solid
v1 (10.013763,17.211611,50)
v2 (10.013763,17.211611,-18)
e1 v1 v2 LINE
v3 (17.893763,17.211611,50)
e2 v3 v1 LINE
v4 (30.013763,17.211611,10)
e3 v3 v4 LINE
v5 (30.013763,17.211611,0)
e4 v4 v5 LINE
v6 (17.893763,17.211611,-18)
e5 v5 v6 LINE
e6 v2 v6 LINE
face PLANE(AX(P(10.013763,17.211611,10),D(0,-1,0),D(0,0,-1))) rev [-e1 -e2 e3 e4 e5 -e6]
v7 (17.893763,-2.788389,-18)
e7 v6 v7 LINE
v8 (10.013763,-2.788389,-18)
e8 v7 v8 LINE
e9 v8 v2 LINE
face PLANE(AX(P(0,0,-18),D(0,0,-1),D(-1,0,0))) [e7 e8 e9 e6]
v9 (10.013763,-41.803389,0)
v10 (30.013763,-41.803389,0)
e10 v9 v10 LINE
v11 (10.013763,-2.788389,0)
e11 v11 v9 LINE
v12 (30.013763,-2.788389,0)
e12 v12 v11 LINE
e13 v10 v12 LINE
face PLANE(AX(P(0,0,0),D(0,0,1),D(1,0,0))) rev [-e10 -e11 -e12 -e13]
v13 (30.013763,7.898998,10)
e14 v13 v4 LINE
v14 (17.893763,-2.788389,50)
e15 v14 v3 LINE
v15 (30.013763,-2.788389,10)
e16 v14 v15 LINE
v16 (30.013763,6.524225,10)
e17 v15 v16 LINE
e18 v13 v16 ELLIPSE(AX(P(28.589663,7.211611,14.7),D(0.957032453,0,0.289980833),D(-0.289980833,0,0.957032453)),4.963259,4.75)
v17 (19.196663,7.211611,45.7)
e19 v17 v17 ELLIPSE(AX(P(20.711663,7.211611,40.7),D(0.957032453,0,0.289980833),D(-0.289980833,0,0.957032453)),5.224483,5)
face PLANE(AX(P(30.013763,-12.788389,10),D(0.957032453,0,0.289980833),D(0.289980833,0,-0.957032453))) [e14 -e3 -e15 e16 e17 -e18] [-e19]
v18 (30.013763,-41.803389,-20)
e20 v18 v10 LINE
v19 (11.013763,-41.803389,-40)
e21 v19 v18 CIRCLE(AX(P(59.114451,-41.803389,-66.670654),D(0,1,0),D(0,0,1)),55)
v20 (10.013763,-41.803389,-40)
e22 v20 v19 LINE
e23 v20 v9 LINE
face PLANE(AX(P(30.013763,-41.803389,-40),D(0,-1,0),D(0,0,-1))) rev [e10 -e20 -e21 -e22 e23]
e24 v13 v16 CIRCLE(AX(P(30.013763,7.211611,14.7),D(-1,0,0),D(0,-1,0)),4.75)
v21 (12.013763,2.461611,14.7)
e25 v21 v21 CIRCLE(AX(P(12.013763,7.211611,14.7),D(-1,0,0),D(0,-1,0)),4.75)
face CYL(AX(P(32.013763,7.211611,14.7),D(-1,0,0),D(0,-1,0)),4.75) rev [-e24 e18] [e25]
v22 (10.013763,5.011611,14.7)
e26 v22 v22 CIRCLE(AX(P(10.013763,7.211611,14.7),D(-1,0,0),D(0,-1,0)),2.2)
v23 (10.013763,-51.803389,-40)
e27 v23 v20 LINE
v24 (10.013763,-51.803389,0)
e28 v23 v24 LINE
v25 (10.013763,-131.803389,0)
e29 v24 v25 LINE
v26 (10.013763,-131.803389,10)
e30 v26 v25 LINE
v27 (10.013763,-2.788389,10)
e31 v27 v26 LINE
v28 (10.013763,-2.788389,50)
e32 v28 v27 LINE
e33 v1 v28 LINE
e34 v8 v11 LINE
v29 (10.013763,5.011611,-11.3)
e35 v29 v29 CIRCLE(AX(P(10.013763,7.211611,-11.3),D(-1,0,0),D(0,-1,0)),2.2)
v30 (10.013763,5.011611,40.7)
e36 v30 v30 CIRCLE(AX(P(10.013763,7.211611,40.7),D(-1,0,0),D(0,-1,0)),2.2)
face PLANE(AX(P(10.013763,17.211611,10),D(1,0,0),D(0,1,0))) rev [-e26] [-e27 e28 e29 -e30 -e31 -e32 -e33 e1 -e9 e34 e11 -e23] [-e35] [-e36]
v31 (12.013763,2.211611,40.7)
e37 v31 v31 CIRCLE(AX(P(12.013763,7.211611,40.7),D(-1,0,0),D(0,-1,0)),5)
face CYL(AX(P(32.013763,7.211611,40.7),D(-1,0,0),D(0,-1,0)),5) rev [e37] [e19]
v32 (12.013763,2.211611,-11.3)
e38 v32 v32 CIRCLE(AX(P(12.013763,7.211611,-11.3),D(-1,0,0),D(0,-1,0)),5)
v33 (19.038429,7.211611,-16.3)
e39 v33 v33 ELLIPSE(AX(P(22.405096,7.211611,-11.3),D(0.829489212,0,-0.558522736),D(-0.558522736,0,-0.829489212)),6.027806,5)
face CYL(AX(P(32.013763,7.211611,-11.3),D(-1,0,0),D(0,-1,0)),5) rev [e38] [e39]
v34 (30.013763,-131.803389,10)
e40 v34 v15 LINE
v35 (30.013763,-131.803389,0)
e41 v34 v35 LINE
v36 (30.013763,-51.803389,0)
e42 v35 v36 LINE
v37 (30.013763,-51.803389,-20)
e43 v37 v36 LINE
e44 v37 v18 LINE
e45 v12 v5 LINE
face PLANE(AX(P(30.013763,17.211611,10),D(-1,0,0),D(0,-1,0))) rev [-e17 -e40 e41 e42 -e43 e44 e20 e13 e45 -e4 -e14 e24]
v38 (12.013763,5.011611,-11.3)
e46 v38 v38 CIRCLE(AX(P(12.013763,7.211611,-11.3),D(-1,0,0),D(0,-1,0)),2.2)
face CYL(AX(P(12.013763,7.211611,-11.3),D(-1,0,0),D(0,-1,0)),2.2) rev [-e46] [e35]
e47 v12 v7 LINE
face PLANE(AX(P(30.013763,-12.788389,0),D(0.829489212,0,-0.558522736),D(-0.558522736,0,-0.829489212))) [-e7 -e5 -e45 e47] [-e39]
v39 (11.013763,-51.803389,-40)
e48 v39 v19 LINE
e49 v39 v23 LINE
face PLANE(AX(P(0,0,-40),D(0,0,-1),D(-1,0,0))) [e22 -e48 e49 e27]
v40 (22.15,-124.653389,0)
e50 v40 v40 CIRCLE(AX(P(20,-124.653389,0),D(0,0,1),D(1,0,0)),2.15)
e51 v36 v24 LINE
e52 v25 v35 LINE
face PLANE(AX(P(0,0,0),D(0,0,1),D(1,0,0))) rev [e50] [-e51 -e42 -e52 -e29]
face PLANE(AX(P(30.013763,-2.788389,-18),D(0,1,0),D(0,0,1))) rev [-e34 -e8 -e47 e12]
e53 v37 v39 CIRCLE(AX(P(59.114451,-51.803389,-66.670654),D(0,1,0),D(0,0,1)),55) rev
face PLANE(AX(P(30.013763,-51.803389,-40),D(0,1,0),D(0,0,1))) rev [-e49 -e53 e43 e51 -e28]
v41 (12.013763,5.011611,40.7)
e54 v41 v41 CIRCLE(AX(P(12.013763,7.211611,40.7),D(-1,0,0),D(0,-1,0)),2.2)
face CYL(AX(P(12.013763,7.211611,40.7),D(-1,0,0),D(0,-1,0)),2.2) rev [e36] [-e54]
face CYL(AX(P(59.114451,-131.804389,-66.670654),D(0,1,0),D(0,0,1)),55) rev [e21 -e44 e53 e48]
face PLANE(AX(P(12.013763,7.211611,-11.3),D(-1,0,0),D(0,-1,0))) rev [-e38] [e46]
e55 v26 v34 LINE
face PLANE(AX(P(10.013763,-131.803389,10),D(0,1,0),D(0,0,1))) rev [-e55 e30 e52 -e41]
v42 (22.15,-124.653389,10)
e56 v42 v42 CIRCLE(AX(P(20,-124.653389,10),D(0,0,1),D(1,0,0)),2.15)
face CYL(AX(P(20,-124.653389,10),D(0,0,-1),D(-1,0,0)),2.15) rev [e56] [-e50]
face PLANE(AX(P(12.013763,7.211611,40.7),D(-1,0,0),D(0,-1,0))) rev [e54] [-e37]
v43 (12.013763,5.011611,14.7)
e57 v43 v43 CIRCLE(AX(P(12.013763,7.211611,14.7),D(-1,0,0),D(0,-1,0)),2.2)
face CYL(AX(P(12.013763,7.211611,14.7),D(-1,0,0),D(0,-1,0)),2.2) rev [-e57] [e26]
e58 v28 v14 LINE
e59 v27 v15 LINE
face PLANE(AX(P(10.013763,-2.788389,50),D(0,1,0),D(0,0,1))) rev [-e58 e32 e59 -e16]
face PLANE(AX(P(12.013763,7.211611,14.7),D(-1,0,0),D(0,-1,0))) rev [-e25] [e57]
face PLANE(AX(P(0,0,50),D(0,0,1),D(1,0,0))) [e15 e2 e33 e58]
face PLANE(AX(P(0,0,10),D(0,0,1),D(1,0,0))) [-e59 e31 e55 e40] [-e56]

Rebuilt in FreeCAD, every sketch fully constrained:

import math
import FreeCAD as App
import Part
import Sketcher
from FreeCAD import Vector

doc = App.newDocument("Part")
body = doc.addObject("PartDesign::Body", "Body")

sketch1 = body.newObject("Sketcher::SketchObject", "Sketch")
sketch1.AttachmentSupport = (doc.getObject("XY_Plane"), [""])
sketch1.MapMode = "FlatFace"
sketch1.addGeometry(Part.LineSegment(Vector(10.013763, 17.211611, 0), Vector(10.013763, -131.803389, 0)), False)
sketch1.addGeometry(Part.LineSegment(Vector(10.013763, -131.803389, 0), Vector(30.013763, -131.803389, 0)), False)
sketch1.addGeometry(Part.LineSegment(Vector(30.013763, -131.803389, 0), Vector(30.013763, 17.211611, 0)), False)
sketch1.addGeometry(Part.LineSegment(Vector(30.013763, 17.211611, 0), Vector(10.013763, 17.211611, 0)), False)
sketch1.addGeometry(Part.Circle(Vector(20, -124.653389, 0), Vector(0, 0, 1), 2.15), False)
sketch1.addConstraint(Sketcher.Constraint("Coincident", 0, 2, 1, 1))
sketch1.addConstraint(Sketcher.Constraint("Coincident", 1, 2, 2, 1))
sketch1.addConstraint(Sketcher.Constraint("Coincident", 2, 2, 3, 1))
sketch1.addConstraint(Sketcher.Constraint("Coincident", 3, 2, 0, 1))
sketch1.addConstraint(Sketcher.Constraint("Vertical", 0))
sketch1.addConstraint(Sketcher.Constraint("Horizontal", 1))
sketch1.addConstraint(Sketcher.Constraint("Vertical", 2))
sketch1.addConstraint(Sketcher.Constraint("Horizontal", 3))
sketch1.addConstraint(Sketcher.Constraint("Diameter", 4, 4.3))
sketch1.addConstraint(Sketcher.Constraint("DistanceX", 1, 1, 1, 2, 20.0))
sketch1.addConstraint(Sketcher.Constraint("DistanceX", -1, 1, 4, 3, 20.0))
sketch1.addConstraint(Sketcher.Constraint("DistanceY", 0, 2, 0, 1, 149.015))
sketch1.addConstraint(Sketcher.Constraint("DistanceY", 0, 2, 4, 3, 7.15))
sketch1.addConstraint(Sketcher.Constraint("DistanceY", 4, 3, -1, 1, 124.653389))
sketch1.addConstraint(Sketcher.Constraint("DistanceX", -1, 1, 0, 2, 10.013763))
pad1 = body.newObject("PartDesign::Pad", "Pad")
pad1.Profile = sketch1
pad1.Length = 10

sketch2 = body.newObject("Sketcher::SketchObject", "Sketch001")
sketch2.AttachmentSupport = (doc.getObject("XY_Plane"), [""])
sketch2.MapMode = "FlatFace"
sketch2.AttachmentOffset = App.Placement(Vector(0, 0, 10), App.Rotation())
sketch2.addGeometry(Part.LineSegment(Vector(10.013763, 17.211611, 0), Vector(10.013763, -2.788389, 0)), False)
sketch2.addGeometry(Part.LineSegment(Vector(10.013763, -2.788389, 0), Vector(30.013763, -2.788389, 0)), False)
sketch2.addGeometry(Part.LineSegment(Vector(30.013763, -2.788389, 0), Vector(30.013763, 17.211611, 0)), False)
sketch2.addGeometry(Part.LineSegment(Vector(30.013763, 17.211611, 0), Vector(10.013763, 17.211611, 0)), False)
sketch2.addConstraint(Sketcher.Constraint("Coincident", 0, 2, 1, 1))
sketch2.addConstraint(Sketcher.Constraint("Coincident", 1, 2, 2, 1))
sketch2.addConstraint(Sketcher.Constraint("Coincident", 2, 2, 3, 1))
sketch2.addConstraint(Sketcher.Constraint("Coincident", 3, 2, 0, 1))
sketch2.addConstraint(Sketcher.Constraint("Vertical", 0))
sketch2.addConstraint(Sketcher.Constraint("Horizontal", 1))
sketch2.addConstraint(Sketcher.Constraint("Vertical", 2))
sketch2.addConstraint(Sketcher.Constraint("Horizontal", 3))
sketch2.addConstraint(Sketcher.Constraint("Equal", 3, 0))
sketch2.addConstraint(Sketcher.Constraint("DistanceX", 1, 1, 1, 2, 20.0))
sketch2.addConstraint(Sketcher.Constraint("DistanceY", 0, 2, -1, 1, 2.788389))
sketch2.addConstraint(Sketcher.Constraint("DistanceX", -1, 1, 0, 2, 10.013763))
pad2 = body.newObject("PartDesign::Pad", "Pad001")
pad2.Profile = sketch2
pad2.Length = 40

sketch3 = body.newObject("Sketcher::SketchObject", "Sketch002")
sketch3.AttachmentSupport = (doc.getObject("XY_Plane"), [""])
sketch3.MapMode = "FlatFace"
sketch3.addGeometry(Part.LineSegment(Vector(30.013763, 17.211611, 0), Vector(30.013763, -2.788389, 0)), False)
sketch3.addGeometry(Part.LineSegment(Vector(30.013763, -2.788389, 0), Vector(10.013763, -2.788389, 0)), False)
sketch3.addGeometry(Part.LineSegment(Vector(10.013763, -2.788389, 0), Vector(10.013763, 17.211611, 0)), False)
sketch3.addGeometry(Part.LineSegment(Vector(10.013763, 17.211611, 0), Vector(30.013763, 17.211611, 0)), False)
sketch3.addConstraint(Sketcher.Constraint("Coincident", 0, 2, 1, 1))
sketch3.addConstraint(Sketcher.Constraint("Coincident", 1, 2, 2, 1))
sketch3.addConstraint(Sketcher.Constraint("Coincident", 2, 2, 3, 1))
sketch3.addConstraint(Sketcher.Constraint("Coincident", 3, 2, 0, 1))
sketch3.addConstraint(Sketcher.Constraint("Vertical", 0))
sketch3.addConstraint(Sketcher.Constraint("Horizontal", 1))
sketch3.addConstraint(Sketcher.Constraint("Vertical", 2))
sketch3.addConstraint(Sketcher.Constraint("Horizontal", 3))
sketch3.addConstraint(Sketcher.Constraint("Equal", 3, 0))
sketch3.addConstraint(Sketcher.Constraint("DistanceX", 1, 2, 1, 1, 20.0))
sketch3.addConstraint(Sketcher.Constraint("DistanceY", 0, 2, -1, 1, 2.788389))
sketch3.addConstraint(Sketcher.Constraint("DistanceX", -1, 1, 0, 2, 30.013763))
pad3 = body.newObject("PartDesign::Pad", "Pad002")
pad3.Profile = sketch3
pad3.Length = 18
pad3.Reversed = True

sketch4 = body.newObject("Sketcher::SketchObject", "Sketch003")
sketch4.AttachmentSupport = (doc.getObject("XZ_Plane"), [""])
sketch4.MapMode = "FlatFace"
sketch4.AttachmentOffset = App.Placement(Vector(0, 0, 2.788389), App.Rotation())
sketch4.addGeometry(Part.LineSegment(Vector(30.013763, 50, 0), Vector(17.893763, 50, 0)), False)
sketch4.addGeometry(Part.LineSegment(Vector(17.893763, 50, 0), Vector(30.013763, 10, 0)), False)
sketch4.addGeometry(Part.LineSegment(Vector(30.013763, 10, 0), Vector(30.013763, 50, 0)), False)
sketch4.addGeometry(Part.LineSegment(Vector(17.893763, -18, 0), Vector(30.013763, -18, 0)), False)
sketch4.addGeometry(Part.LineSegment(Vector(30.013763, -18, 0), Vector(30.013763, 0, 0)), False)
sketch4.addGeometry(Part.LineSegment(Vector(30.013763, 0, 0), Vector(17.893763, -18, 0)), False)
sketch4.addConstraint(Sketcher.Constraint("Coincident", 0, 2, 1, 1))
sketch4.addConstraint(Sketcher.Constraint("Coincident", 1, 2, 2, 1))
sketch4.addConstraint(Sketcher.Constraint("Coincident", 2, 2, 0, 1))
sketch4.addConstraint(Sketcher.Constraint("Coincident", 3, 2, 4, 1))
sketch4.addConstraint(Sketcher.Constraint("Coincident", 4, 2, 5, 1))
sketch4.addConstraint(Sketcher.Constraint("Coincident", 5, 2, 3, 1))
sketch4.addConstraint(Sketcher.Constraint("Horizontal", 0))
sketch4.addConstraint(Sketcher.Constraint("Vertical", 2))
sketch4.addConstraint(Sketcher.Constraint("Horizontal", 3))
sketch4.addConstraint(Sketcher.Constraint("Vertical", 4))
sketch4.addConstraint(Sketcher.Constraint("PointOnObject", 4, 2, -1))
sketch4.addConstraint(Sketcher.Constraint("Vertical", 2, 2, 3, 2))
sketch4.addConstraint(Sketcher.Constraint("Vertical", 0, 2, 5, 2))
sketch4.addConstraint(Sketcher.Constraint("DistanceY", 2, 1, 2, 2, 40.0))
sketch4.addConstraint(Sketcher.Constraint("DistanceY", 4, 1, 4, 2, 18.0))
sketch4.addConstraint(Sketcher.Constraint("DistanceY", -1, 1, 0, 2, 50.0))
sketch4.addConstraint(Sketcher.Constraint("DistanceX", 0, 2, 0, 1, 12.12))
sketch4.addConstraint(Sketcher.Constraint("DistanceX", -1, 1, 0, 2, 17.893763))
pocket1 = body.newObject("PartDesign::Pocket", "Pocket")
pocket1.Profile = sketch4
pocket1.Type = "ThroughAll"
pocket1.Midplane = True

sketch5 = body.newObject("Sketcher::SketchObject", "Sketch004")
sketch5.AttachmentSupport = (doc.getObject("YZ_Plane"), [""])
sketch5.MapMode = "FlatFace"
sketch5.AttachmentOffset = App.Placement(Vector(0, 0, 10.013763), App.Rotation())
sketch5.addGeometry(Part.Circle(Vector(7.211611, 14.7, 0), Vector(0, 0, 1), 2.2), False)
sketch5.addGeometry(Part.Circle(Vector(7.211611, 40.7, 0), Vector(0, 0, 1), 2.2), False)
sketch5.addGeometry(Part.Circle(Vector(7.211611, -11.3, 0), Vector(0, 0, 1), 2.2), False)
sketch5.addConstraint(Sketcher.Constraint("Equal", 0, 1))
sketch5.addConstraint(Sketcher.Constraint("Equal", 1, 2))
sketch5.addConstraint(Sketcher.Constraint("Vertical", 0, 3, 1, 3))
sketch5.addConstraint(Sketcher.Constraint("Vertical", 1, 3, 2, 3))
sketch5.addConstraint(Sketcher.Constraint("Diameter", 0, 4.4))
sketch5.addConstraint(Sketcher.Constraint("DistanceY", 0, 3, 1, 3, 26.0))
sketch5.addConstraint(Sketcher.Constraint("DistanceY", 2, 3, 0, 3, 26.0))
sketch5.addConstraint(Sketcher.Constraint("DistanceY", -1, 1, 0, 3, 14.7))
sketch5.addConstraint(Sketcher.Constraint("DistanceX", -1, 1, 0, 3, 7.211611))
pocket2 = body.newObject("PartDesign::Pocket", "Pocket001")
pocket2.Profile = sketch5
pocket2.Length = 2
pocket2.Reversed = True

sketch6 = body.newObject("Sketcher::SketchObject", "Sketch005")
sketch6.AttachmentSupport = (doc.getObject("YZ_Plane"), [""])
sketch6.MapMode = "FlatFace"
sketch6.AttachmentOffset = App.Placement(Vector(0, 0, 12.013763), App.Rotation())
sketch6.addGeometry(Part.Circle(Vector(7.211611, 40.7, 0), Vector(0, 0, 1), 5), False)
sketch6.addGeometry(Part.Circle(Vector(7.211611, -11.3, 0), Vector(0, 0, 1), 5), False)
sketch6.addGeometry(Part.Circle(Vector(7.211611, 14.7, 0), Vector(0, 0, 1), 4.75), False)
sketch6.addConstraint(Sketcher.Constraint("Equal", 0, 1))
sketch6.addConstraint(Sketcher.Constraint("Vertical", 0, 3, 1, 3))
sketch6.addConstraint(Sketcher.Constraint("Vertical", 1, 3, 2, 3))
sketch6.addConstraint(Sketcher.Constraint("Diameter", 0, 10.0))
sketch6.addConstraint(Sketcher.Constraint("Diameter", 2, 9.5))
sketch6.addConstraint(Sketcher.Constraint("DistanceY", 1, 3, 0, 3, 52.0))
sketch6.addConstraint(Sketcher.Constraint("DistanceY", 1, 3, 2, 3, 26.0))
sketch6.addConstraint(Sketcher.Constraint("DistanceY", -1, 1, 0, 3, 40.7))
sketch6.addConstraint(Sketcher.Constraint("DistanceX", -1, 1, 0, 3, 7.211611))
pocket3 = body.newObject("PartDesign::Pocket", "Pocket002")
pocket3.Profile = sketch6
pocket3.Length = 20
pocket3.Reversed = True

sketch7 = body.newObject("Sketcher::SketchObject", "Sketch006")
sketch7.AttachmentSupport = (doc.getObject("XY_Plane"), [""])
sketch7.MapMode = "FlatFace"
sketch7.addGeometry(Part.LineSegment(Vector(30.013763, -41.803389, 0), Vector(30.013763, -51.803389, 0)), False)
sketch7.addGeometry(Part.LineSegment(Vector(30.013763, -51.803389, 0), Vector(10.013763, -51.803389, 0)), False)
sketch7.addGeometry(Part.LineSegment(Vector(10.013763, -51.803389, 0), Vector(10.013763, -41.803389, 0)), False)
sketch7.addGeometry(Part.LineSegment(Vector(10.013763, -41.803389, 0), Vector(30.013763, -41.803389, 0)), False)
sketch7.addConstraint(Sketcher.Constraint("Coincident", 0, 2, 1, 1))
sketch7.addConstraint(Sketcher.Constraint("Coincident", 1, 2, 2, 1))
sketch7.addConstraint(Sketcher.Constraint("Coincident", 2, 2, 3, 1))
sketch7.addConstraint(Sketcher.Constraint("Coincident", 3, 2, 0, 1))
sketch7.addConstraint(Sketcher.Constraint("Vertical", 0))
sketch7.addConstraint(Sketcher.Constraint("Horizontal", 1))
sketch7.addConstraint(Sketcher.Constraint("Vertical", 2))
sketch7.addConstraint(Sketcher.Constraint("Horizontal", 3))
sketch7.addConstraint(Sketcher.Constraint("DistanceX", 1, 2, 1, 1, 20.0))
sketch7.addConstraint(Sketcher.Constraint("DistanceY", 0, 2, 0, 1, 10.0))
sketch7.addConstraint(Sketcher.Constraint("DistanceY", 0, 2, -1, 1, 51.803389))
sketch7.addConstraint(Sketcher.Constraint("DistanceX", -1, 1, 0, 2, 30.013763))
pad4 = body.newObject("PartDesign::Pad", "Pad003")
pad4.Profile = sketch7
pad4.Length = 40
pad4.Reversed = True

sketch8 = body.newObject("Sketcher::SketchObject", "Sketch007")
sketch8.AttachmentSupport = (doc.getObject("XZ_Plane"), [""])
sketch8.MapMode = "FlatFace"
sketch8.AttachmentOffset = App.Placement(Vector(0, 0, 41.803389), App.Rotation())
sketch8.addGeometry(Part.LineSegment(Vector(30.013763, -20, 0), Vector(30.013763, -40, 0)), False)
sketch8.addGeometry(Part.LineSegment(Vector(30.013763, -40, 0), Vector(11.013763, -40, 0)), False)
sketch8.addGeometry(Part.ArcOfCircle(Part.Circle(Vector(59.114451, -66.670654, 0), Vector(0, 0, 1), 55), math.radians(121.944897), math.radians(150.992705)), False)
sketch8.addConstraint(Sketcher.Constraint("Coincident", 0, 2, 1, 1))
sketch8.addConstraint(Sketcher.Constraint("Coincident", 1, 2, 2, 2))
sketch8.addConstraint(Sketcher.Constraint("Coincident", 2, 1, 0, 1))
sketch8.addConstraint(Sketcher.Constraint("Vertical", 0))
sketch8.addConstraint(Sketcher.Constraint("Horizontal", 1))
sketch8.addConstraint(Sketcher.Constraint("Radius", 2, 55.0))
sketch8.addConstraint(Sketcher.Constraint("DistanceX", 1, 2, 1, 1, 19.0))
sketch8.addConstraint(Sketcher.Constraint("DistanceY", 0, 2, 0, 1, 20.0))
sketch8.addConstraint(Sketcher.Constraint("DistanceY", 0, 2, -1, 1, 40.0))
sketch8.addConstraint(Sketcher.Constraint("DistanceX", -1, 1, 2, 3, 59.114451))
pocket4 = body.newObject("PartDesign::Pocket", "Pocket003")
pocket4.Profile = sketch8
pocket4.Type = "UpToFirst"
pocket4.Reversed = True

doc.recompute()
